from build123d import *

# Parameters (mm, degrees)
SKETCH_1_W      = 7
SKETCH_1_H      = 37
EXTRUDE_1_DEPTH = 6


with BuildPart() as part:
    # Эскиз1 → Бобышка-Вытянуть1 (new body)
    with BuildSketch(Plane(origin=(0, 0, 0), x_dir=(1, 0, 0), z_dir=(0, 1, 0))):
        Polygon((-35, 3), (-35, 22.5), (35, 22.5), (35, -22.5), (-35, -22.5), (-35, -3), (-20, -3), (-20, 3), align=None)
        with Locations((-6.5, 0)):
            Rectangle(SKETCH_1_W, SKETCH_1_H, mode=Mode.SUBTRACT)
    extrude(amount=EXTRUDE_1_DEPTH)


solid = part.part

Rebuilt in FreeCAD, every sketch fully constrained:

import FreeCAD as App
import Part
import Sketcher
Q = App.Units.Quantity

doc = App.newDocument("Part")
body = doc.addObject("PartDesign::Body", "Body")

# Sketch on XZ plane
sketch1 = body.newObject("Sketcher::SketchObject", "Sketch")
sketch1.AttachmentSupport = (doc.getObject("XZ_Plane"), [""])
sketch1.MapMode = "FlatFace"
sketch1.addGeometry(Part.LineSegment(App.Vector(-35, -22, 0), App.Vector(-35, -3, 0)), False)
sketch1.addGeometry(Part.LineSegment(App.Vector(-35, -3, 0), App.Vector(-20, -3, 0)), False)
sketch1.addGeometry(Part.LineSegment(App.Vector(-20, -3, 0), App.Vector(-20, 3, 0)), False)
sketch1.addGeometry(Part.LineSegment(App.Vector(-20, 3, 0), App.Vector(-35, 3, 0)), False)
sketch1.addGeometry(Part.LineSegment(App.Vector(-35, 3, 0), App.Vector(-35, 22, 0)), False)
sketch1.addGeometry(Part.LineSegment(App.Vector(-35, 22, 0), App.Vector(35, 22, 0)), False)
sketch1.addGeometry(Part.LineSegment(App.Vector(35, 22, 0), App.Vector(35, -22, 0)), False)
sketch1.addGeometry(Part.LineSegment(App.Vector(35, -22, 0), App.Vector(-35, -22, 0)), False)
sketch1.addGeometry(Part.LineSegment(App.Vector(-10, 18, 0), App.Vector(-10, -18, 0)), False)
sketch1.addGeometry(Part.LineSegment(App.Vector(-10, -18, 0), App.Vector(-3, -18, 0)), False)
sketch1.addGeometry(Part.LineSegment(App.Vector(-3, -18, 0), App.Vector(-3, 18, 0)), False)
sketch1.addGeometry(Part.LineSegment(App.Vector(-3, 18, 0), App.Vector(-10, 18, 0)), False)
sketch1.addConstraint(Sketcher.Constraint("Coincident", 0, 2, 1, 1))
sketch1.addConstraint(Sketcher.Constraint("Coincident", 1, 2, 2, 1))
sketch1.addConstraint(Sketcher.Constraint("Coincident", 2, 2, 3, 1))
sketch1.addConstraint(Sketcher.Constraint("Coincident", 3, 2, 4, 1))
sketch1.addConstraint(Sketcher.Constraint("Coincident", 4, 2, 5, 1))
sketch1.addConstraint(Sketcher.Constraint("Coincident", 5, 2, 6, 1))
sketch1.addConstraint(Sketcher.Constraint("Coincident", 6, 2, 7, 1))
sketch1.addConstraint(Sketcher.Constraint("Coincident", 7, 2, 0, 1))
sketch1.addConstraint(Sketcher.Constraint("Coincident", 8, 2, 9, 1))
sketch1.addConstraint(Sketcher.Constraint("Coincident", 9, 2, 10, 1))
sketch1.addConstraint(Sketcher.Constraint("Coincident", 10, 2, 11, 1))
sketch1.addConstraint(Sketcher.Constraint("Coincident", 11, 2, 8, 1))
sketch1.addConstraint(Sketcher.Constraint("Vertical", 0))
sketch1.addConstraint(Sketcher.Constraint("Horizontal", 1))
sketch1.addConstraint(Sketcher.Constraint("Vertical", 2))
sketch1.addConstraint(Sketcher.Constraint("Horizontal", 3))
sketch1.addConstraint(Sketcher.Constraint("Vertical", 4))
sketch1.addConstraint(Sketcher.Constraint("Horizontal", 5))
sketch1.addConstraint(Sketcher.Constraint("Vertical", 6))
sketch1.addConstraint(Sketcher.Constraint("Horizontal", 7))
sketch1.addConstraint(Sketcher.Constraint("Vertical", 8))
sketch1.addConstraint(Sketcher.Constraint("Horizontal", 9))
sketch1.addConstraint(Sketcher.Constraint("Vertical", 10))
sketch1.addConstraint(Sketcher.Constraint("Horizontal", 11))
sketch1.addConstraint(Sketcher.Constraint("Symmetric", 4, 2, 6, 2, -1, 1))
sketch1.addConstraint(Sketcher.Constraint("Symmetric", 0, 2, 3, 2, -1))
sketch1.addConstraint(Sketcher.Constraint("DistanceX", 1, 1, 1, 2, Q("15 mm")))
sketch1.addConstraint(Sketcher.Constraint("DistanceX", 5, 1, 5, 2, Q("70 mm")))
sketch1.addConstraint(Sketcher.Constraint("DistanceX", 9, 1, 9, 2, Q("7 mm")))
sketch1.addConstraint(Sketcher.Constraint("DistanceY", 2, 1, 2, 2, Q("6 mm")))
sketch1.addConstraint(Sketcher.Constraint("DistanceY", 6, 2, 6, 1, Q("45 mm")))
sketch1.addConstraint(Sketcher.Constraint("DistanceY", 8, 2, 8, 1, Q("37 mm")))
sketch1.addConstraint(Sketcher.Constraint("DistanceX", 8, 2, -1, 1, Q("10 mm")))
sketch1.addConstraint(Sketcher.Constraint("DistanceY", 7, 2, 8, 2, Q("4 mm")))
pad1 = body.newObject("PartDesign::Pad", "Pad")
pad1.Profile = sketch1
pad1.Length = 6
pad1.Reversed = True

doc.recompute()
